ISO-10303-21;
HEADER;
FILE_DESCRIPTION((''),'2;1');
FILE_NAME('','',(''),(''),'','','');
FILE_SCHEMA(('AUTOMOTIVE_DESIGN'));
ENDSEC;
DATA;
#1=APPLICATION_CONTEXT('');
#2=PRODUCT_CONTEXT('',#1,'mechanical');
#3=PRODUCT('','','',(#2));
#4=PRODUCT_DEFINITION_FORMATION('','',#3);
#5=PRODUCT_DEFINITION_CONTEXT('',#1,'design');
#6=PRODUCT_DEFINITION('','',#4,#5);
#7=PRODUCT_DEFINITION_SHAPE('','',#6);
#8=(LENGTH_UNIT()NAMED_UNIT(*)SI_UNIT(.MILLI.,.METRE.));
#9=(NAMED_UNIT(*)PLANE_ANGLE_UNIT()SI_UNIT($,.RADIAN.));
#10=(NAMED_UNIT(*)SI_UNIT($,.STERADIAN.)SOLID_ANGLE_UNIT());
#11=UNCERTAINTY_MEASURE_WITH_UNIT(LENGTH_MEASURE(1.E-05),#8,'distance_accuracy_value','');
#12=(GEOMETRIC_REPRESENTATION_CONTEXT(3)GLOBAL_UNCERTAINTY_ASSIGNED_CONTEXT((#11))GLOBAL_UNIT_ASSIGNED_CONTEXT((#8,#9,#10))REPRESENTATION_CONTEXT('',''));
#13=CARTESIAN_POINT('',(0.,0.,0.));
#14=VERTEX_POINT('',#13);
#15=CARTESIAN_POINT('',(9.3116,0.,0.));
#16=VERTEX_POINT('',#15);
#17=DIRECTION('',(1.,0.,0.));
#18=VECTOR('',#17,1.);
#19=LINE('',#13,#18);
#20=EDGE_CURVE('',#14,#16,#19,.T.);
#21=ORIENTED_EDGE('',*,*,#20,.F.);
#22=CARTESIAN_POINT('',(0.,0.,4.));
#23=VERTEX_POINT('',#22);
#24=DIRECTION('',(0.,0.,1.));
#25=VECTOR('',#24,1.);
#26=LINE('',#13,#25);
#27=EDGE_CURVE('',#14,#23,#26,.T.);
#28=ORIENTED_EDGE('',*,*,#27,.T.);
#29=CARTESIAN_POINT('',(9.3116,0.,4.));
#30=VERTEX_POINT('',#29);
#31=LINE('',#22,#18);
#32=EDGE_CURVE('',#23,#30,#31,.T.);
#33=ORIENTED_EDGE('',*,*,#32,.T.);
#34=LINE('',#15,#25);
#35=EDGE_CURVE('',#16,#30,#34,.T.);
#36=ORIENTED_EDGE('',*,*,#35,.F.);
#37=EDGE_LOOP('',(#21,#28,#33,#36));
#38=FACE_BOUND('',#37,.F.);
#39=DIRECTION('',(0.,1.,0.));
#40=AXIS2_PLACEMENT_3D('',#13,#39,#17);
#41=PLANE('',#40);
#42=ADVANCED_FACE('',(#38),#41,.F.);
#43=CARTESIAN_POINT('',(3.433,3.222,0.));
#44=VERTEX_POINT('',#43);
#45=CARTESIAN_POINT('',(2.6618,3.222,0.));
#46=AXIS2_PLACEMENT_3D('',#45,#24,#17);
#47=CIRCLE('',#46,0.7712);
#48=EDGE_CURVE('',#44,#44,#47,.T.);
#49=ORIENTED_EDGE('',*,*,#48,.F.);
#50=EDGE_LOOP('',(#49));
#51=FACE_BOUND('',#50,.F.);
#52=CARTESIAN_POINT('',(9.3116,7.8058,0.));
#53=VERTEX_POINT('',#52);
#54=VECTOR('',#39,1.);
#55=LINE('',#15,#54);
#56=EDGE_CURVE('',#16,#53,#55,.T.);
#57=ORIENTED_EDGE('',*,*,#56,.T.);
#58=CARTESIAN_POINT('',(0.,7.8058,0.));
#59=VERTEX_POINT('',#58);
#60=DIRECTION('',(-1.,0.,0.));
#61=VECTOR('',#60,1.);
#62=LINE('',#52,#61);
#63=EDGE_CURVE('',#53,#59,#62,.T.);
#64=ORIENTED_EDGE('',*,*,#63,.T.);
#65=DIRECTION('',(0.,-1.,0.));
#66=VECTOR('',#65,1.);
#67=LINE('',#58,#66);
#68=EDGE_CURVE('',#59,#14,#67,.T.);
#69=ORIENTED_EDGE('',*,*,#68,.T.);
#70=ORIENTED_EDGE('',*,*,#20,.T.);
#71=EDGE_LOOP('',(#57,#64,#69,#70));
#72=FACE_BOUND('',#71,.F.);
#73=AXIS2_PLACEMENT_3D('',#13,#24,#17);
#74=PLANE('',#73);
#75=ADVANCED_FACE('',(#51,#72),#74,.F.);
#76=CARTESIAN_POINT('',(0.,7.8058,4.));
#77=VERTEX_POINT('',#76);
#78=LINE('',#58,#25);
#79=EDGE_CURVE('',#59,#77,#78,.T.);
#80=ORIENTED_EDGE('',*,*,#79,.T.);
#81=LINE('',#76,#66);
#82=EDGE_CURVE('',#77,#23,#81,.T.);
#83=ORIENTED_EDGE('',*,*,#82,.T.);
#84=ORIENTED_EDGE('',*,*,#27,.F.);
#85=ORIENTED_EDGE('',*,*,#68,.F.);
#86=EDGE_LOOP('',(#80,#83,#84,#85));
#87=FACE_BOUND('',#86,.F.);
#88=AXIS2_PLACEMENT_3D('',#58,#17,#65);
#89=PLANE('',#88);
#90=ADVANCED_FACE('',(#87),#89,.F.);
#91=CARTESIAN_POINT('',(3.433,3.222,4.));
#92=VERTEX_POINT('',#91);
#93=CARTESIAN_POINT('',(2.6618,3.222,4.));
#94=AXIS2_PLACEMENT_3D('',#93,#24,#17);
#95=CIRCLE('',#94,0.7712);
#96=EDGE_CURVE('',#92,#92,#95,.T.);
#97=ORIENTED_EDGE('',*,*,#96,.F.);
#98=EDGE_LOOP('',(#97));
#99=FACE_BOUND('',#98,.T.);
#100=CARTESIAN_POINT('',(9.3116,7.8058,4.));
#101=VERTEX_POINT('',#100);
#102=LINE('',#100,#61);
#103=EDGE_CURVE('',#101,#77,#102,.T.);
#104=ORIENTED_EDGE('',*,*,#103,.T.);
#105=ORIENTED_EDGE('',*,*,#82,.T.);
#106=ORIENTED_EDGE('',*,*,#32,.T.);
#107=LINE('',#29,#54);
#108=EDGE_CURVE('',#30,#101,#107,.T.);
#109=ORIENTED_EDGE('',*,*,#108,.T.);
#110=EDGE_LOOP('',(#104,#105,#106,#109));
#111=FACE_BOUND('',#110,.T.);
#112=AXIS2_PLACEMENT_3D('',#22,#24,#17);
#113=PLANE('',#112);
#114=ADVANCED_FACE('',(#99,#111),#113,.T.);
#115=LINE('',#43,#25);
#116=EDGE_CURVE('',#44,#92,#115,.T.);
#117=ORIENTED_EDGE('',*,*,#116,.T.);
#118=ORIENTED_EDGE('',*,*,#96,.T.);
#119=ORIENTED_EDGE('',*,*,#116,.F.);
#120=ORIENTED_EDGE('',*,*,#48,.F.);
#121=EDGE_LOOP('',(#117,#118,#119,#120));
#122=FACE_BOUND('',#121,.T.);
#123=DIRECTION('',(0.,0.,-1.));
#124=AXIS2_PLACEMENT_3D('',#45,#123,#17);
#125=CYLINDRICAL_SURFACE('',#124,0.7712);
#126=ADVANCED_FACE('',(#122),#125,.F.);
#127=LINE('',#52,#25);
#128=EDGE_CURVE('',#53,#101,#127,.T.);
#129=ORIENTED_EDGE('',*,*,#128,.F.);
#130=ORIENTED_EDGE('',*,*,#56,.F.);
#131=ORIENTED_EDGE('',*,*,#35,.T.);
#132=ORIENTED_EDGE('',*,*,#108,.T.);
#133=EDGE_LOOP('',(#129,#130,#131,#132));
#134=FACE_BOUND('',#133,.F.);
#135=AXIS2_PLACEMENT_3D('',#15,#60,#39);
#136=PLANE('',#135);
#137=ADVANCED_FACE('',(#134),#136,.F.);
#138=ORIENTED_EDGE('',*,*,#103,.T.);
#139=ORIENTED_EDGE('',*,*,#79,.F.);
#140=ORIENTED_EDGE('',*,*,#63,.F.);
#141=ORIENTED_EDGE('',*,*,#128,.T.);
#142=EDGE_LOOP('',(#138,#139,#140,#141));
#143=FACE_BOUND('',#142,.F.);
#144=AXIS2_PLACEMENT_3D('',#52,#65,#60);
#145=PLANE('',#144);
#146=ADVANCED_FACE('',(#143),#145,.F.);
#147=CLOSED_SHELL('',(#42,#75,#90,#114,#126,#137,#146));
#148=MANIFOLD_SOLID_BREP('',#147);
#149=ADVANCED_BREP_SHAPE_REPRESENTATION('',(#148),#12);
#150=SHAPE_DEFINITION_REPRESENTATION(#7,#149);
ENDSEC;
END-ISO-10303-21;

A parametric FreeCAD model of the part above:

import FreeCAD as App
import Part
import Sketcher


def add_polygon(sketch, points):
    """Adds a closed chain of lines whose ends are joined by coincident constraints."""
    first, n = sketch.GeometryCount, len(points)
    for a, b in zip(points, points[1:] + points[:1]):
        sketch.addGeometry(Part.LineSegment(App.Vector(*a, 0), App.Vector(*b, 0)), False)
    for i in range(n):
        sketch.addConstraint(Sketcher.Constraint("Coincident", first + i, 2, first + (i + 1) % n, 1))

doc = App.newDocument("Part")
body = doc.addObject("PartDesign::Body", "Body")

# Sketch on XY plane
sketch1 = body.newObject("Sketcher::SketchObject", "Sketch")
sketch1.AttachmentSupport = (doc.getObject("XY_Plane"), [""])
sketch1.MapMode = "FlatFace"
add_polygon(sketch1, [(0, 7.8058), (0, 0), (9.3116, 0), (9.3116, 7.8058)])  # lines 0-3
sketch1.addGeometry(Part.Circle(App.Vector(2.6618, 3.222, 0), App.Vector(0, 0, 1), 0.7712), False)  # 4
sketch1.addConstraint([
    Sketcher.Constraint("Vertical", 0),
    Sketcher.Constraint("Horizontal", 1),
    Sketcher.Constraint("Vertical", 2),
    Sketcher.Constraint("Horizontal", 3),
    Sketcher.Constraint("Coincident", 0, 2, -1, 1),
    Sketcher.Constraint("Diameter", 4, 1.5424),
    Sketcher.Constraint("DistanceX", 1, 1, 1, 2, 9.3116),
    Sketcher.Constraint("DistanceY", 0, 2, 0, 1, 7.8058),
    Sketcher.Constraint("DistanceY", -1, 1, 4, 3, 3.222),
    Sketcher.Constraint("DistanceX", -1, 1, 4, 3, 2.6618),
])
pad1 = body.newObject("PartDesign::Pad", "Pad")
pad1.Profile = sketch1
pad1.Length = 4

doc.recompute()
